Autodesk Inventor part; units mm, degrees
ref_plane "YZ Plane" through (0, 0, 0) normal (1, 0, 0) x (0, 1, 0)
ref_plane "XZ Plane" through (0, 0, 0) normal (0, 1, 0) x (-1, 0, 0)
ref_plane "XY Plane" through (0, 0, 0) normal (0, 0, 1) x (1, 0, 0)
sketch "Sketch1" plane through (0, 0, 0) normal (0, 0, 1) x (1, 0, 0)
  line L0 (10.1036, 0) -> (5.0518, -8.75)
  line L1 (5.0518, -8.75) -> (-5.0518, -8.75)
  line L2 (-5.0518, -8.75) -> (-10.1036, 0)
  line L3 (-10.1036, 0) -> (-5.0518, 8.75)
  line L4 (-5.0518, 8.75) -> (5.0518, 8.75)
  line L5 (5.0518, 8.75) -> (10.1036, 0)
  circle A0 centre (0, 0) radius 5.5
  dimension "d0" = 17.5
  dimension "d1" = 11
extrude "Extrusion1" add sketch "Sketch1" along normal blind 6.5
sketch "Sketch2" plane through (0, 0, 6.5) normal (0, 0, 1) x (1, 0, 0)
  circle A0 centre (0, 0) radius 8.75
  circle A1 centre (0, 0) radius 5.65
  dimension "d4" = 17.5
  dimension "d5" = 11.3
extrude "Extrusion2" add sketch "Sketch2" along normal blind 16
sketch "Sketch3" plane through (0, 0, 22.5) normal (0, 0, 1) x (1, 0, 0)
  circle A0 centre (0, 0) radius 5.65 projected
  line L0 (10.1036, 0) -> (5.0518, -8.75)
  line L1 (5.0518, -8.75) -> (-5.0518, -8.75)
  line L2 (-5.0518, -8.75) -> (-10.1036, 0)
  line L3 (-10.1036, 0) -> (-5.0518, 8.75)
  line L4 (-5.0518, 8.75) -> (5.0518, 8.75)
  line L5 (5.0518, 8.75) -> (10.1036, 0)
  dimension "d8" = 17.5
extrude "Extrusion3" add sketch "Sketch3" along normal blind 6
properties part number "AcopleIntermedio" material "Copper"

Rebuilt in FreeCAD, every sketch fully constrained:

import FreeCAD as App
import Part
import Sketcher
Q = App.Units.Quantity


def add_polygon(sketch, points):
    """Adds a closed chain of lines whose ends are joined by coincident constraints."""
    first, n = sketch.GeometryCount, len(points)
    for a, b in zip(points, points[1:] + points[:1]):
        sketch.addGeometry(Part.LineSegment(App.Vector(*a, 0), App.Vector(*b, 0)), False)
    for i in range(n):
        sketch.addConstraint(Sketcher.Constraint("Coincident", first + i, 2, first + (i + 1) % n, 1))

doc = App.newDocument("Part")
body = doc.addObject("PartDesign::Body", "Body")

# Sketch on XY plane
sketch1 = body.newObject("Sketcher::SketchObject", "Sketch")
sketch1.AttachmentSupport = (doc.getObject("XY_Plane"), [""])
sketch1.MapMode = "FlatFace"
add_polygon(sketch1, [(5, -9), (10, 0), (5, 9), (-5, 9), (-10, 0), (-5, -9)])  # lines 0-5
sketch1.addGeometry(Part.Circle(App.Vector(0, 0, 0), App.Vector(0, 0, 1), 6), False)  # 6
sketch1.addConstraint(Sketcher.Constraint("Horizontal", 2))
sketch1.addConstraint(Sketcher.Constraint("Horizontal", 5))
sketch1.addConstraint(Sketcher.Constraint("Coincident", 6, 3, -1, 1))
sketch1.addConstraint(Sketcher.Constraint("Symmetric", 0, 2, 3, 2, -1, 1))
sketch1.addConstraint(Sketcher.Constraint("Symmetric", 1, 2, 4, 2, -1, 1))
sketch1.addConstraint(Sketcher.Constraint("PointOnObject", 0, 2, -1))
sketch1.addConstraint(Sketcher.Constraint("Parallel", 0, 3))
sketch1.addConstraint(Sketcher.Constraint("Vertical", 2, 2, 4, 2))
sketch1.addConstraint(Sketcher.Constraint("Diameter", 6, 11.0))
sketch1.addConstraint(Sketcher.Constraint("DistanceY", 4, 2, 2, 2, 17.5))
sketch1.addConstraint(Sketcher.Constraint("Angle", 0, Q("60 deg")))
sketch1.addConstraint(Sketcher.Constraint("DistanceX", 2, 2, 2, 1, 10.1036))
pad1 = body.newObject("PartDesign::Pad", "Pad")
pad1.Profile = sketch1
pad1.Length = 6.5

# Sketch on XY plane
sketch2 = body.newObject("Sketcher::SketchObject", "Sketch001")
sketch2.AttachmentSupport = (doc.getObject("XY_Plane"), [""])
sketch2.MapMode = "FlatFace"
sketch2.AttachmentOffset = App.Placement(App.Vector(0, 0, 6.5), App.Rotation())
sketch2.addGeometry(Part.Circle(App.Vector(0, 0, 0), App.Vector(0, 0, 1), 9), False)
sketch2.addGeometry(Part.Circle(App.Vector(0, 0, 0), App.Vector(0, 0, 1), 6), False)
sketch2.addConstraint(Sketcher.Constraint("Coincident", 0, 3, -1, 1))
sketch2.addConstraint(Sketcher.Constraint("Coincident", 1, 3, -1, 1))
sketch2.addConstraint(Sketcher.Constraint("Diameter", 0, 17.5))
sketch2.addConstraint(Sketcher.Constraint("Diameter", 1, 11.3))
pad2 = body.newObject("PartDesign::Pad", "Pad001")
pad2.Profile = sketch2
pad2.Length = 16

# Sketch on XY plane
sketch3 = body.newObject("Sketcher::SketchObject", "Sketch002")
sketch3.AttachmentSupport = (doc.getObject("XY_Plane"), [""])
sketch3.MapMode = "FlatFace"
sketch3.AttachmentOffset = App.Placement(App.Vector(0, 0, 22.5), App.Rotation())
add_polygon(sketch3, [(5, -9), (10, 0), (5, 9), (-5, 9), (-10, 0), (-5, -9)])  # lines 0-5
sketch3.addGeometry(Part.Circle(App.Vector(0, 0, 0), App.Vector(0, 0, 1), 6), False)  # 6
sketch3.addConstraint(Sketcher.Constraint("Horizontal", 2))
sketch3.addConstraint(Sketcher.Constraint("Horizontal", 5))
sketch3.addConstraint(Sketcher.Constraint("Coincident", 6, 3, -1, 1))
sketch3.addConstraint(Sketcher.Constraint("Symmetric", 0, 2, 3, 2, -1, 1))
sketch3.addConstraint(Sketcher.Constraint("Symmetric", 1, 2, 4, 2, -1, 1))
sketch3.addConstraint(Sketcher.Constraint("PointOnObject", 0, 2, -1))
sketch3.addConstraint(Sketcher.Constraint("Parallel", 0, 3))
sketch3.addConstraint(Sketcher.Constraint("Vertical", 2, 2, 4, 2))
sketch3.addConstraint(Sketcher.Constraint("Diameter", 6, 11.3))
sketch3.addConstraint(Sketcher.Constraint("DistanceY", 4, 2, 2, 2, 17.5))
sketch3.addConstraint(Sketcher.Constraint("Angle", 0, Q("60 deg")))
sketch3.addConstraint(Sketcher.Constraint("DistanceX", 2, 2, 2, 1, 10.1036))
pad3 = body.newObject("PartDesign::Pad", "Pad002")
pad3.Profile = sketch3
pad3.Length = 6

doc.recompute()
